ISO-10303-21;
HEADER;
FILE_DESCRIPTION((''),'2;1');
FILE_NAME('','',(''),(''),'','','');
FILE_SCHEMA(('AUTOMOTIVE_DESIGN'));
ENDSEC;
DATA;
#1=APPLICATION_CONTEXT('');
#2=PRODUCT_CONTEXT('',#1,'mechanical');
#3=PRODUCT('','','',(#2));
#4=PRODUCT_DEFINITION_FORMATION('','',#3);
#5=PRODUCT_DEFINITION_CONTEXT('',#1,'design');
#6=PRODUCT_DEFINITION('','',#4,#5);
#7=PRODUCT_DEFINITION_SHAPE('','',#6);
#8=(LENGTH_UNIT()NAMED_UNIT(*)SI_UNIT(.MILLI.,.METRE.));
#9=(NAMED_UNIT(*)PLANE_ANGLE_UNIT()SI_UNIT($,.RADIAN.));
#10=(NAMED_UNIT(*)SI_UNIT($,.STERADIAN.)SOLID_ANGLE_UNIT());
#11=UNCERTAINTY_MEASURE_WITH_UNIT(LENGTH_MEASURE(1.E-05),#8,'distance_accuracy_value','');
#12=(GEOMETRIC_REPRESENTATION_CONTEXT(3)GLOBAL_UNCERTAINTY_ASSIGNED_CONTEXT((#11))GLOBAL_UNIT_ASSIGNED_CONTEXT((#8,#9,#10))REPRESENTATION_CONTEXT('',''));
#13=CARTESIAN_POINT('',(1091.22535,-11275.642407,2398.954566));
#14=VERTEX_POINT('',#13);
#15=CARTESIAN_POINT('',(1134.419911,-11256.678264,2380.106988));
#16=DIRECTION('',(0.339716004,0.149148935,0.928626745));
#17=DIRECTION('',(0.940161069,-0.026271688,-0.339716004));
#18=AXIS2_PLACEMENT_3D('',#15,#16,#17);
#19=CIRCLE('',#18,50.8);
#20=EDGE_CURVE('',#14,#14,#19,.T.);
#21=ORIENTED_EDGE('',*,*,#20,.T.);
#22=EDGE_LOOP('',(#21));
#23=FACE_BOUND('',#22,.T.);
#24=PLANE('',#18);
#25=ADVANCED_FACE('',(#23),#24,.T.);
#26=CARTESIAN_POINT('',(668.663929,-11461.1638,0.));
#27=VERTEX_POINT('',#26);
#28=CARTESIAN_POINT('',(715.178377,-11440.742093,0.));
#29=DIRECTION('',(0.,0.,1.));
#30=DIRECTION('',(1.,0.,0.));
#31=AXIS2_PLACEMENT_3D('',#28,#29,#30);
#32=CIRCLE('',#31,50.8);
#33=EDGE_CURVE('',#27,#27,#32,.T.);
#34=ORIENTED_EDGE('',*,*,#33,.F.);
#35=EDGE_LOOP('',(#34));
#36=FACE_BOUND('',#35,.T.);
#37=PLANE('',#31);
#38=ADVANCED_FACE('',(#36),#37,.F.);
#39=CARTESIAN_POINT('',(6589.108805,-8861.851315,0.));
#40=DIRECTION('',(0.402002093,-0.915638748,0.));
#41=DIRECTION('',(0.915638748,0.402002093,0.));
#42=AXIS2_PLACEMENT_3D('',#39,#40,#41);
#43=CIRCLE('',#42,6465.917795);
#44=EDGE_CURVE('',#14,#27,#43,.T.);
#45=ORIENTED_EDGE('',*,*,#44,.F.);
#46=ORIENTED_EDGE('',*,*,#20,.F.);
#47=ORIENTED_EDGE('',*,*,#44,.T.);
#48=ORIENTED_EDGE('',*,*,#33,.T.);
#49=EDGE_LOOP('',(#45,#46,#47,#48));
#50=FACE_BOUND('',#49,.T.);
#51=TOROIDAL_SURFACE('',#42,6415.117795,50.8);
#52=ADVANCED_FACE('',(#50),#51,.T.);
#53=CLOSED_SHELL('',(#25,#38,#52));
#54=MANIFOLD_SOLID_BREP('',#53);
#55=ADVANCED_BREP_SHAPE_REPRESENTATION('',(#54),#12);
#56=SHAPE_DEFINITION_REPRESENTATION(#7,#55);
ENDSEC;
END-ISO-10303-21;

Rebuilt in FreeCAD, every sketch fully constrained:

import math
import FreeCAD as App
import Part
import Sketcher
Q = App.Units.Quantity

doc = App.newDocument("Part")
params = doc.addObject("Spreadsheet::Sheet", "Params")
for row, (alias, value) in enumerate([
    ("sketch1_diameter", "4 in"),
], start=1):
    params.set(f"A{row}", alias)
    params.set(f"B{row}", "=" + value)
    params.setAlias(f"B{row}", alias)

body = doc.addObject("PartDesign::Body", "Body")

# Sketch on XY plane
sketch1 = body.newObject("Sketcher::SketchObject", "Sketch")
sketch1.AttachmentSupport = (doc.getObject("XY_Plane"), [""])
sketch1.MapMode = "FlatFace"
sketch1.addGeometry(Part.Circle(App.Vector(715, -11441, 0), App.Vector(0, 0, 1), 51), False)
sketch1.addConstraint([
    Sketcher.Constraint("Diameter", 0, Q("4 in")),
    Sketcher.Constraint("DistanceX", -1, 1, 0, 3, Q("715.178377 mm")),
    Sketcher.Constraint("DistanceY", 0, 3, -1, 1, Q("11440.742093 mm")),
])
sketch1.setExpression("Constraints[0]", "Params.sketch1_diameter")

# Sketch on an angled plane
sketch2 = body.newObject("Sketcher::SketchObject", "Sketch001")
sketch2.Placement = App.Placement(App.Vector(4326.784694, -9855.102233, 0), App.Rotation(App.Vector(-0.915638748, -0.402002093, 0), App.Vector(0, 0, 1), App.Vector(-0.402002093, 0.915638748, 0), "ZXY"))
sketch2.addGeometry(Part.ArcOfCircle(Part.Circle(App.Vector(-2471, 0, 0), App.Vector(0, 0, 1), 6415), math.radians(0), math.radians(22)), False)
sketch2.addConstraint([
    Sketcher.Constraint("PointOnObject", 0, 3, -1),
    Sketcher.Constraint("PointOnObject", 0, 1, -1),
    Sketcher.Constraint("Radius", 0, Q("6415.117795 mm")),
    Sketcher.Constraint("DistanceX", 0, 3, 0, 2, Q("234.5373999 in")),
    Sketcher.Constraint("DistanceX", -1, 1, 0, 1, Q("3944.357231 mm")),
])
doc.recompute()

additivepipe = body.newObject("PartDesign::AdditivePipe", "AdditivePipe")
additivepipe.Profile = sketch1
additivepipe.Spine = (sketch2, ["Edge1"])

doc.recompute()
